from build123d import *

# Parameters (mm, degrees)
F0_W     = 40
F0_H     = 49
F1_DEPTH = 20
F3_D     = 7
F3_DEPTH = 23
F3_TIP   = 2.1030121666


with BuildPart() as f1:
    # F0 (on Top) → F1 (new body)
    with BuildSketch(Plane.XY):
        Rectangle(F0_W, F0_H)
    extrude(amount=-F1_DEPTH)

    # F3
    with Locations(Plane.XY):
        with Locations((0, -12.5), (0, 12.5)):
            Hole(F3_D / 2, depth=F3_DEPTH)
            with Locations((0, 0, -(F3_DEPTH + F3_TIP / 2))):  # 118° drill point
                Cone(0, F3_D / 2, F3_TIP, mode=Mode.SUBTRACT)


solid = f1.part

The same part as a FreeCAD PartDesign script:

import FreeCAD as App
import Part
import Sketcher
from FreeCAD import Vector


def add_polygon(sketch, points):
    """Adds a closed chain of lines whose ends are joined by coincident constraints."""
    first, n = sketch.GeometryCount, len(points)
    for a, b in zip(points, points[1:] + points[:1]):
        sketch.addGeometry(Part.LineSegment(App.Vector(*a, 0), App.Vector(*b, 0)), False)
    for i in range(n):
        sketch.addConstraint(Sketcher.Constraint("Coincident", first + i, 2, first + (i + 1) % n, 1))

doc = App.newDocument("Part")
body = doc.addObject("PartDesign::Body", "Body")

# Sketch on XY plane
sketch1 = body.newObject("Sketcher::SketchObject", "Sketch")
sketch1.AttachmentSupport = (doc.getObject("XY_Plane"), [""])
sketch1.MapMode = "FlatFace"
add_polygon(sketch1, [(-20, 24), (-20, -24), (20, -24), (20, 24)])  # lines 0-3
sketch1.addConstraint(Sketcher.Constraint("Vertical", 0))
sketch1.addConstraint(Sketcher.Constraint("Horizontal", 1))
sketch1.addConstraint(Sketcher.Constraint("Vertical", 2))
sketch1.addConstraint(Sketcher.Constraint("Horizontal", 3))
sketch1.addConstraint(Sketcher.Constraint("Symmetric", 0, 2, 2, 2, -1, 1))
sketch1.addConstraint(Sketcher.Constraint("DistanceX", 1, 1, 1, 2, 40.0))
sketch1.addConstraint(Sketcher.Constraint("DistanceY", 0, 2, 0, 1, 49.0))
pad1 = body.newObject("PartDesign::Pad", "Pad")
pad1.Profile = sketch1
pad1.Length = 20
pad1.Reversed = True

# Sketch on XY plane
sketch2 = body.newObject("Sketcher::SketchObject", "Sketch001")
sketch2.AttachmentSupport = (doc.getObject("XY_Plane"), [""])
sketch2.MapMode = "FlatFace"
sketch2.addGeometry(Part.Circle(Vector(0, -12.5, 0), Vector(0, 0, 1), 3.5), False)
sketch2.addGeometry(Part.Circle(Vector(0, 12.5, 0), Vector(0, 0, 1), 3.5), False)
sketch2.addConstraint(Sketcher.Constraint("Equal", 0, 1))
sketch2.addConstraint(Sketcher.Constraint("Symmetric", 0, 3, 1, 3, -1, 1))
sketch2.addConstraint(Sketcher.Constraint("PointOnObject", 0, 3, -2))
sketch2.addConstraint(Sketcher.Constraint("Diameter", 0, 7.0))
sketch2.addConstraint(Sketcher.Constraint("DistanceY", 0, 3, 1, 3, 25.0))
doc.recompute()
hole = body.newObject("PartDesign::Hole", "Hole")
hole.Profile = sketch2
hole.ThreadType = "None"
hole.Diameter = 7
hole.DepthType = "Dimension"
hole.Depth = 23
hole.DrillPoint = "Angled"
hole.DrillPointAngle = 118

doc.recompute()
